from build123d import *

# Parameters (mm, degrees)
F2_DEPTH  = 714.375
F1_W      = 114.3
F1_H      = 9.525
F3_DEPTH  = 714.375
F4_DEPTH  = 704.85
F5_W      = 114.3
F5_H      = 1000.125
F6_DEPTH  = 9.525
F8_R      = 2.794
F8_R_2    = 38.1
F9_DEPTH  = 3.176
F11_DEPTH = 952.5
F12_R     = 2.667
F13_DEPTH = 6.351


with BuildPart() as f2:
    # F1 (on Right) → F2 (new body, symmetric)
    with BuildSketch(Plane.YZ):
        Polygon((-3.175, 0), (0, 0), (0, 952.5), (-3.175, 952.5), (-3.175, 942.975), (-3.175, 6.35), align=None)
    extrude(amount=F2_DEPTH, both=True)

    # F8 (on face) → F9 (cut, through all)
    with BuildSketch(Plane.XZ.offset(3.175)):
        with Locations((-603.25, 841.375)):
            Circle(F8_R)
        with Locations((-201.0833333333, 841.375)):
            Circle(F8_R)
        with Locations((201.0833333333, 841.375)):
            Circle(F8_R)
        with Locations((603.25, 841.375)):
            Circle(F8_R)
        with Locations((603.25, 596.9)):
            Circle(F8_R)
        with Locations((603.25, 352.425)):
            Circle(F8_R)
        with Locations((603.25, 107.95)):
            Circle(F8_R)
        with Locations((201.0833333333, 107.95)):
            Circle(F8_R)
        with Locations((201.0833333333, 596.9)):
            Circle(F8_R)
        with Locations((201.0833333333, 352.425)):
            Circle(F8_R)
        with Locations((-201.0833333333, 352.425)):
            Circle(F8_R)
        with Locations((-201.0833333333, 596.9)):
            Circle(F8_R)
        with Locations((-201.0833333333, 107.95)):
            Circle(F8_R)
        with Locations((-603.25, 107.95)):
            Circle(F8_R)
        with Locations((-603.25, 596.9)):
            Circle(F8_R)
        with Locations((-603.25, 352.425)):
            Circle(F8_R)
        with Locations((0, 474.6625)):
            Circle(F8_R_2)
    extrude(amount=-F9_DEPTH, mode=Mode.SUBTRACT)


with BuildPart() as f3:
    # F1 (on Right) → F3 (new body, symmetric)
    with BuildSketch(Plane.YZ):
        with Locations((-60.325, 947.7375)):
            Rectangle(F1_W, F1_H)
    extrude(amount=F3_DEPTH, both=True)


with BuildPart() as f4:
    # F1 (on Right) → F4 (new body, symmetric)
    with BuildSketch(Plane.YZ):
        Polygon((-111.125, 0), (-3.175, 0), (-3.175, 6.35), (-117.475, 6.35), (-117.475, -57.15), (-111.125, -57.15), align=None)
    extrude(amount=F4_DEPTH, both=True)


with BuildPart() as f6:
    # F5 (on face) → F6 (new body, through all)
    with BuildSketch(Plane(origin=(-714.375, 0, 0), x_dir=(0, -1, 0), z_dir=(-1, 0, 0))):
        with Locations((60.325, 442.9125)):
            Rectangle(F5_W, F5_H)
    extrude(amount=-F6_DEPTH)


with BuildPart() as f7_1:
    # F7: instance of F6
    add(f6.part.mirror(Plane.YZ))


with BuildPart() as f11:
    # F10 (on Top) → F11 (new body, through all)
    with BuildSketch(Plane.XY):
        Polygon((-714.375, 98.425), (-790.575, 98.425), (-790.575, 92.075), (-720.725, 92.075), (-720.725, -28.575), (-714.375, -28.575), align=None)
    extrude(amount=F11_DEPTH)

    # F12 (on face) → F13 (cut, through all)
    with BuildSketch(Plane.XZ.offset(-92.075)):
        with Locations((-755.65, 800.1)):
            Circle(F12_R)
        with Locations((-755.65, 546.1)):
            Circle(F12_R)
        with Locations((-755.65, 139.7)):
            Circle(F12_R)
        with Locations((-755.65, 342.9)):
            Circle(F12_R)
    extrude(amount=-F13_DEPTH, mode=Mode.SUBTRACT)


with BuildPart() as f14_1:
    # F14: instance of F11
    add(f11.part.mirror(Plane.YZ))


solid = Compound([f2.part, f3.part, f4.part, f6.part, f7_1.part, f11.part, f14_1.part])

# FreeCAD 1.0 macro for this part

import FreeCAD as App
import Part
import Sketcher
from FreeCAD import Vector
Q = App.Units.Quantity


def add_polygon(sketch, points):
    """Adds a closed chain of lines whose ends are joined by coincident constraints."""
    first, n = sketch.GeometryCount, len(points)
    for a, b in zip(points, points[1:] + points[:1]):
        sketch.addGeometry(Part.LineSegment(App.Vector(*a, 0), App.Vector(*b, 0)), False)
    for i in range(n):
        sketch.addConstraint(Sketcher.Constraint("Coincident", first + i, 2, first + (i + 1) % n, 1))

doc = App.newDocument("Part")
body = doc.addObject("PartDesign::Body", "Body")

# Sketch on YZ plane
sketch1 = body.newObject("Sketcher::SketchObject", "Sketch")
sketch1.AttachmentSupport = (doc.getObject("YZ_Plane"), [""])
sketch1.MapMode = "FlatFace"
add_polygon(sketch1, [(-3.2, 0), (0, 0), (0, 952.5), (-3.2, 952.5)])  # lines 0-3
sketch1.addConstraint([
    Sketcher.Constraint("Horizontal", 0),
    Sketcher.Constraint("Vertical", 1),
    Sketcher.Constraint("Horizontal", 2),
    Sketcher.Constraint("Vertical", 3),
    Sketcher.Constraint("Coincident", 0, 2, -1, 1),
    Sketcher.Constraint("DistanceY", 1, 1, 1, 2, Q("37.5 in")),
    Sketcher.Constraint("DistanceX", 0, 1, 0, 2, Q("0.125 in")),
])
pad1 = body.newObject("PartDesign::Pad", "Pad")
pad1.Profile = sketch1
pad1.Length = Q("56.25 in")
pad1.Midplane = True

# Sketch on XZ plane
sketch2 = body.newObject("Sketcher::SketchObject", "Sketch001")
sketch2.AttachmentSupport = (doc.getObject("XZ_Plane"), [""])
sketch2.MapMode = "FlatFace"
sketch2.AttachmentOffset = App.Placement(Vector(0, 0, 0.125 * 25.4), App.Rotation())
sketch2.addGeometry([
    Part.Circle(Vector(-603.2, 841.4, 0), Vector(0, 0, 1), 2.8),  # 0
    Part.Circle(Vector(-201.1, 841.4, 0), Vector(0, 0, 1), 2.8),  # 1
    Part.Circle(Vector(201.1, 841.4, 0), Vector(0, 0, 1), 2.8),  # 2
    Part.Circle(Vector(603.2, 841.4, 0), Vector(0, 0, 1), 2.8),  # 3
    Part.Circle(Vector(603.2, 596.9, 0), Vector(0, 0, 1), 2.8),  # 4
    Part.Circle(Vector(603.2, 352.4, 0), Vector(0, 0, 1), 2.8),  # 5
    Part.Circle(Vector(603.2, 108, 0), Vector(0, 0, 1), 2.8),  # 6
    Part.Circle(Vector(201.1, 108, 0), Vector(0, 0, 1), 2.8),  # 7
    Part.Circle(Vector(201.1, 596.9, 0), Vector(0, 0, 1), 2.8),  # 8
    Part.Circle(Vector(201.1, 352.4, 0), Vector(0, 0, 1), 2.8),  # 9
    Part.Circle(Vector(-201.1, 352.4, 0), Vector(0, 0, 1), 2.8),  # 10
    Part.Circle(Vector(-201.1, 596.9, 0), Vector(0, 0, 1), 2.8),  # 11
    Part.Circle(Vector(-201.1, 108, 0), Vector(0, 0, 1), 2.8),  # 12
    Part.Circle(Vector(-603.2, 108, 0), Vector(0, 0, 1), 2.8),  # 13
    Part.Circle(Vector(-603.2, 596.9, 0), Vector(0, 0, 1), 2.8),  # 14
    Part.Circle(Vector(-603.2, 352.4, 0), Vector(0, 0, 1), 2.8),  # 15
    Part.Circle(Vector(0, 474.7, 0), Vector(0, 0, 1), 38.1),  # 16
], False)
sketch2.addConstraint([
    Sketcher.Constraint("Equal", 0, 1),
    Sketcher.Constraint("Equal", 1, 2),
    Sketcher.Constraint("Equal", 2, 3),
    Sketcher.Constraint("Equal", 3, 4),
    Sketcher.Constraint("Equal", 4, 5),
    Sketcher.Constraint("Equal", 5, 6),
    Sketcher.Constraint("Equal", 6, 7),
    Sketcher.Constraint("Equal", 7, 8),
    Sketcher.Constraint("Equal", 8, 9),
    Sketcher.Constraint("Equal", 9, 10),
    Sketcher.Constraint("Equal", 10, 11),
    Sketcher.Constraint("Equal", 11, 12),
    Sketcher.Constraint("Equal", 12, 13),
    Sketcher.Constraint("Equal", 13, 14),
    Sketcher.Constraint("Equal", 14, 15),
    Sketcher.Constraint("Symmetric", 1, 3, 2, 3, -2),
    Sketcher.Constraint("Symmetric", 0, 3, 3, 3, -2),
    Sketcher.Constraint("Symmetric", 9, 3, 10, 3, -2),
    Sketcher.Constraint("Symmetric", 8, 3, 11, 3, -2),
    Sketcher.Constraint("Symmetric", 7, 3, 12, 3, -2),
    Sketcher.Constraint("Symmetric", 6, 3, 13, 3, -2),
    Sketcher.Constraint("Symmetric", 4, 3, 14, 3, -2),
    Sketcher.Constraint("Symmetric", 5, 3, 15, 3, -2),
    Sketcher.Constraint("PointOnObject", 16, 3, -2),
    Sketcher.Constraint("Horizontal", 0, 3, 1, 3),
    Sketcher.Constraint("Horizontal", 6, 3, 7, 3),
    Sketcher.Constraint("Horizontal", 4, 3, 8, 3),
    Sketcher.Constraint("Horizontal", 5, 3, 9, 3),
    Sketcher.Constraint("Vertical", 3, 3, 4, 3),
    Sketcher.Constraint("Vertical", 4, 3, 5, 3),
    Sketcher.Constraint("Vertical", 5, 3, 6, 3),
    Sketcher.Constraint("Vertical", 2, 3, 7, 3),
    Sketcher.Constraint("Vertical", 7, 3, 8, 3),
    Sketcher.Constraint("Vertical", 8, 3, 9, 3),
    Sketcher.Constraint("Diameter", 16, Q("3 in")),
    Sketcher.Constraint("Diameter", 0, Q("0.22 in")),
    Sketcher.Constraint("DistanceY", -1, 1, 4, 3, Q("23.5 in")),
    Sketcher.Constraint("DistanceX", 0, 3, 3, 3, Q("47.5 in")),
    Sketcher.Constraint("DistanceY", -1, 1, 6, 3, Q("4.25 in")),
    Sketcher.Constraint("DistanceY", 5, 3, 3, 3, Q("19.25 in")),
    Sketcher.Constraint("DistanceY", -1, 1, 0, 3, Q("33.125 in")),
    Sketcher.Constraint("DistanceY", -1, 1, 16, 3, Q("18.6875 in")),
    Sketcher.Constraint("DistanceX", 1, 3, -1, 1, Q("201.083333 mm")),
])
pocket1 = body.newObject("PartDesign::Pocket", "Pocket")
pocket1.Profile = sketch2
pocket1.Type = "ThroughAll"
body2 = doc.addObject("PartDesign::Body", "Body001")

# Sketch on YZ plane
sketch3 = body2.newObject("Sketcher::SketchObject", "Sketch002")
sketch3.AttachmentSupport = (doc.getObject("YZ_Plane001"), [""])
sketch3.MapMode = "FlatFace"
add_polygon(sketch3, [(-117, 952), (-117, 943), (-3, 943), (-3, 952)])  # lines 0-3
sketch3.addConstraint([
    Sketcher.Constraint("Vertical", 0),
    Sketcher.Constraint("Horizontal", 1),
    Sketcher.Constraint("Vertical", 2),
    Sketcher.Constraint("Horizontal", 3),
    Sketcher.Constraint("DistanceX", 1, 1, 1, 2, Q("4.5 in")),
    Sketcher.Constraint("DistanceY", -1, 1, 2, 2, Q("37.5 in")),
    Sketcher.Constraint("DistanceY", 0, 2, 0, 1, Q("0.375 in")),
    Sketcher.Constraint("DistanceX", 0, 2, -1, 1, Q("4.625 in")),
])
pad2 = body2.newObject("PartDesign::Pad", "Pad001")
pad2.Profile = sketch3
pad2.Length = Q("56.25 in")
pad2.Midplane = True
body3 = doc.addObject("PartDesign::Body", "Body002")

# Sketch on YZ plane
sketch4 = body3.newObject("Sketcher::SketchObject", "Sketch003")
sketch4.AttachmentSupport = (doc.getObject("YZ_Plane002"), [""])
sketch4.MapMode = "FlatFace"
add_polygon(sketch4, [(-111, 0), (-3, 0), (-3, 6), (-117, 6), (-117, -57), (-111, -57)])  # lines 0-5
sketch4.addConstraint([
    Sketcher.Constraint("Horizontal", 0),
    Sketcher.Constraint("Vertical", 1),
    Sketcher.Constraint("Horizontal", 2),
    Sketcher.Constraint("Vertical", 3),
    Sketcher.Constraint("Horizontal", 4),
    Sketcher.Constraint("Vertical", 5),
    Sketcher.Constraint("PointOnObject", 0, 2, -1),
    Sketcher.Constraint("Equal", 4, 1),
    Sketcher.Constraint("DistanceX", 2, 2, 2, 1, Q("4.5 in")),
    Sketcher.Constraint("DistanceY", 3, 2, 3, 1, Q("2.5 in")),
    Sketcher.Constraint("DistanceX", 0, 1, 0, 2, Q("4.25 in")),
    Sketcher.Constraint("DistanceX", 0, 2, -1, 1, Q("0.125 in")),
])
pad3 = body3.newObject("PartDesign::Pad", "Pad002")
pad3.Profile = sketch4
pad3.Length = Q("55.5 in")
pad3.Midplane = True
body4 = doc.addObject("PartDesign::Body", "Body003")

# Sketch on YZ plane
sketch5 = body4.newObject("Sketcher::SketchObject", "Sketch004")
sketch5.AttachmentSupport = (doc.getObject("YZ_Plane003"), [""])
sketch5.MapMode = "FlatFace"
sketch5.AttachmentOffset = App.Placement(Vector(0, 0, -28.125 * 25.4), App.Rotation())
add_polygon(sketch5, [(-3, 943), (-3, -57), (-117, -57), (-117, 943)])  # lines 0-3
sketch5.addConstraint([
    Sketcher.Constraint("Vertical", 0),
    Sketcher.Constraint("Horizontal", 1),
    Sketcher.Constraint("Vertical", 2),
    Sketcher.Constraint("Horizontal", 3),
    Sketcher.Constraint("DistanceX", 1, 2, 1, 1, Q("4.5 in")),
    Sketcher.Constraint("DistanceY", 0, 2, 0, 1, Q("39.375 in")),
    Sketcher.Constraint("DistanceY", 0, 2, -1, 1, Q("2.25 in")),
    Sketcher.Constraint("DistanceX", 0, 2, -1, 1, Q("0.125 in")),
])
pad4 = body4.newObject("PartDesign::Pad", "Pad003")
pad4.Profile = sketch5
pad4.Length = Q("0.375 in")
body5 = doc.addObject("PartDesign::Body", "Body004")
doc.recompute()

mirroring = doc.addObject("Part::Mirroring", "Mirroring")
mirroring.Source = body4
mirroring.Base = Vector(0, 0, 0)
mirroring.Normal = Vector(1, 0, 0)
body5.BaseFeature = mirroring
doc.recompute()
body6 = doc.addObject("PartDesign::Body", "Body005")

# Sketch on XY plane
sketch6 = body6.newObject("Sketcher::SketchObject", "Sketch005")
sketch6.AttachmentSupport = (doc.getObject("XY_Plane005"), [""])
sketch6.MapMode = "FlatFace"
add_polygon(sketch6, [(-714, 98), (-791, 98), (-791, 92), (-721, 92), (-721, -29), (-714, -29)])  # lines 0-5
sketch6.addConstraint([
    Sketcher.Constraint("Horizontal", 0),
    Sketcher.Constraint("Vertical", 1),
    Sketcher.Constraint("Horizontal", 2),
    Sketcher.Constraint("Vertical", 3),
    Sketcher.Constraint("Horizontal", 4),
    Sketcher.Constraint("Vertical", 5),
    Sketcher.Constraint("Equal", 4, 1),
    Sketcher.Constraint("DistanceX", 0, 2, 0, 1, Q("3 in")),
    Sketcher.Constraint("DistanceY", 5, 1, 5, 2, Q("5 in")),
    Sketcher.Constraint("DistanceX", 2, 1, 2, 2, Q("2.75 in")),
    Sketcher.Constraint("DistanceX", 0, 2, -1, 1, Q("31.125 in")),
    Sketcher.Constraint("DistanceY", -1, 1, 0, 2, Q("3.875 in")),
])
pad5 = body6.newObject("PartDesign::Pad", "Pad004")
pad5.Profile = sketch6
pad5.Length = Q("37.5 in")

# Sketch on XZ plane
sketch7 = body6.newObject("Sketcher::SketchObject", "Sketch006")
sketch7.AttachmentSupport = (doc.getObject("XZ_Plane005"), [""])
sketch7.MapMode = "FlatFace"
sketch7.AttachmentOffset = App.Placement(Vector(0, 0, -3.625 * 25.4), App.Rotation())
sketch7.addGeometry([
    Part.Circle(Vector(-755.6, 800.1, 0), Vector(0, 0, 1), 2.7),
    Part.Circle(Vector(-755.6, 546.1, 0), Vector(0, 0, 1), 2.7),
    Part.Circle(Vector(-755.6, 139.7, 0), Vector(0, 0, 1), 2.7),
    Part.Circle(Vector(-755.6, 342.9, 0), Vector(0, 0, 1), 2.7),
], False)
sketch7.addConstraint([
    Sketcher.Constraint("Equal", 0, 1),
    Sketcher.Constraint("Equal", 1, 2),
    Sketcher.Constraint("Equal", 2, 3),
    Sketcher.Constraint("Vertical", 0, 3, 1, 3),
    Sketcher.Constraint("Vertical", 1, 3, 2, 3),
    Sketcher.Constraint("Vertical", 2, 3, 3, 3),
    Sketcher.Constraint("Diameter", 0, Q("0.21 in")),
    Sketcher.Constraint("DistanceY", 1, 3, 0, 3, Q("10 in")),
    Sketcher.Constraint("DistanceY", 2, 3, 1, 3, Q("16 in")),
    Sketcher.Constraint("DistanceY", 2, 3, 3, 3, Q("8 in")),
    Sketcher.Constraint("DistanceY", -1, 1, 0, 3, Q("31.5 in")),
    Sketcher.Constraint("DistanceX", 0, 3, -1, 1, Q("29.75 in")),
])
pocket2 = body6.newObject("PartDesign::Pocket", "Pocket001")
pocket2.Profile = sketch7
pocket2.Type = "ThroughAll"
body7 = doc.addObject("PartDesign::Body", "Body006")
doc.recompute()

mirroring2 = doc.addObject("Part::Mirroring", "Mirroring001")
mirroring2.Source = body6
mirroring2.Base = Vector(0, 0, 0)
mirroring2.Normal = Vector(1, 0, 0)
body7.BaseFeature = mirroring2
doc.recompute()
mirroring.Visibility = False
mirroring2.Visibility = False

doc.recompute()
